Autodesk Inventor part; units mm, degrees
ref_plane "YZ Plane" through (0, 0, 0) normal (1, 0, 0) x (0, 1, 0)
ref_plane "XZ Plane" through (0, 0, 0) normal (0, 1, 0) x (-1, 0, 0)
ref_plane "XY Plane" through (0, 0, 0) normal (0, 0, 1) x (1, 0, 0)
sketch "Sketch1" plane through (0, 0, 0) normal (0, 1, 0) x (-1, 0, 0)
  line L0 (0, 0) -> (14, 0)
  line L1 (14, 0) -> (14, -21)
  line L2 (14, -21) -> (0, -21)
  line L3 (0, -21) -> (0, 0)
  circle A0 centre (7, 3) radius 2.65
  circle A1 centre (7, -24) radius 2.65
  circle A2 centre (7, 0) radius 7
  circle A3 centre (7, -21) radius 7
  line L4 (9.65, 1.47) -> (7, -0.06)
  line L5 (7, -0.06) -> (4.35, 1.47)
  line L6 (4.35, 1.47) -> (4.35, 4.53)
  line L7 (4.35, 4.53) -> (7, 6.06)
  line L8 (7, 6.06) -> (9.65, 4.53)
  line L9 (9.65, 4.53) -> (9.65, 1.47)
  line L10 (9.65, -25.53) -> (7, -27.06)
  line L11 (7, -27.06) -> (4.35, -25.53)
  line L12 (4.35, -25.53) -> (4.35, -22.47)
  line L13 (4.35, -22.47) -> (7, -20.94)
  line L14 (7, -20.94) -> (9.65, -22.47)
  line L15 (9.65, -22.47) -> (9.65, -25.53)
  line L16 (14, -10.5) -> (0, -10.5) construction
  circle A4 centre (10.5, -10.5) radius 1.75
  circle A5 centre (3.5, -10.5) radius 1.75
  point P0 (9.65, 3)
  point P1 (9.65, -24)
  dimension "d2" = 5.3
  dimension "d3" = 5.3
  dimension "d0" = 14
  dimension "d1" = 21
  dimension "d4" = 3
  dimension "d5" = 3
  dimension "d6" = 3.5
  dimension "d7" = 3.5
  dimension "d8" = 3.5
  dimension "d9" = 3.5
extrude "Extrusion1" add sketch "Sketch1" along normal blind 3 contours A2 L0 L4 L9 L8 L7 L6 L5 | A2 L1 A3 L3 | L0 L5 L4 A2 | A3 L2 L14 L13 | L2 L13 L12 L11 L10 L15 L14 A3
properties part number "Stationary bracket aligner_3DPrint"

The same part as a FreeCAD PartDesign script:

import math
import FreeCAD as App
import Part
import Sketcher
Q = App.Units.Quantity


def add_polygon(sketch, points):
    """Adds a closed chain of lines whose ends are joined by coincident constraints."""
    first, n = sketch.GeometryCount, len(points)
    for a, b in zip(points, points[1:] + points[:1]):
        sketch.addGeometry(Part.LineSegment(App.Vector(*a, 0), App.Vector(*b, 0)), False)
    for i in range(n):
        sketch.addConstraint(Sketcher.Constraint("Coincident", first + i, 2, first + (i + 1) % n, 1))

doc = App.newDocument("Part")
body = doc.addObject("PartDesign::Body", "Body")

# Sketch on XZ plane
sketch1 = doc.addObject("Sketcher::SketchObject", "Sketch")
body.addObject(sketch1)
sketch1.AttachmentSupport = (doc.XZ_Plane, [""])
sketch1.MapMode = "FlatFace"
sketch1.addGeometry(Part.ArcOfCircle(Part.Circle(App.Vector(-7, 0, 0), App.Vector(0, 0, 1), 7), math.radians(0), math.radians(180)), False)  # 0
sketch1.addGeometry(Part.LineSegment(App.Vector(0, 0, 0), App.Vector(0, -21, 0)), False)  # 1
sketch1.addGeometry(Part.ArcOfCircle(Part.Circle(App.Vector(-7, -21, 0), App.Vector(0, 0, 1), 7), math.radians(180), math.radians(360)), False)  # 2
sketch1.addGeometry(Part.LineSegment(App.Vector(-14, -21, 0), App.Vector(-14, 0, 0)), False)  # 3
add_polygon(sketch1, [(-7, -0.1), (-4.3, 1.5), (-4.3, 4.5), (-7, 6.1), (-9.7, 4.5), (-9.7, 1.5)])  # lines 4-9
sketch1.addGeometry(Part.Circle(App.Vector(-10.5, -10.5, 0), App.Vector(0, 0, 1), 1.8), False)  # 10
sketch1.addGeometry(Part.Circle(App.Vector(-3.5, -10.5, 0), App.Vector(0, 0, 1), 1.8), False)  # 11
add_polygon(sketch1, [(-7, -20.9), (-9.7, -22.5), (-9.7, -25.5), (-7, -27.1), (-4.3, -25.5), (-4.3, -22.5)])  # lines 12-17
sketch1.addConstraint([
    Sketcher.Constraint("Tangent", 0, 1, 1, 1),
    Sketcher.Constraint("Tangent", 1, 2, 2, 2),
    Sketcher.Constraint("Tangent", 2, 1, 3, 1),
    Sketcher.Constraint("Tangent", 3, 2, 0, 2),
    Sketcher.Constraint("Vertical", 1),
    Sketcher.Constraint("Vertical", 3),
    Sketcher.Constraint("Vertical", 5),
    Sketcher.Constraint("Vertical", 8),
    Sketcher.Constraint("Vertical", 13),
    Sketcher.Constraint("Vertical", 16),
    Sketcher.Constraint("Coincident", 0, 1, -1, 1),
    Sketcher.Constraint("Equal", 10, 11),
    Sketcher.Constraint("Parallel", 4, 7),
    Sketcher.Constraint("Parallel", 6, 9),
    Sketcher.Constraint("Parallel", 7, 12),
    Sketcher.Constraint("Parallel", 9, 14),
    Sketcher.Constraint("Parallel", 12, 15),
    Sketcher.Constraint("Parallel", 14, 17),
    Sketcher.Constraint("Horizontal", 10, 3, 11, 3),
    Sketcher.Constraint("Horizontal", 5, 2, 7, 2),
    Sketcher.Constraint("Horizontal", 4, 2, 8, 2),
    Sketcher.Constraint("Horizontal", 13, 2, 15, 2),
    Sketcher.Constraint("Horizontal", 12, 2, 16, 2),
    Sketcher.Constraint("Vertical", 2, 3, 6, 2),
    Sketcher.Constraint("Vertical", 6, 2, 9, 2),
    Sketcher.Constraint("Vertical", 8, 2, 12, 2),
    Sketcher.Constraint("Vertical", 9, 2, 14, 2),
    Sketcher.Constraint("Equal", 8, 13),
    Sketcher.Constraint("Radius", 0, 7.0),
    Sketcher.Constraint("Diameter", 10, 3.5),
    Sketcher.Constraint("DistanceY", 1, 2, 1, 1, 21.0),
    Sketcher.Constraint("DistanceX", 11, 3, -1, 1, 3.5),
    Sketcher.Constraint("DistanceX", 10, 3, 0, 3, 3.5),
    Sketcher.Constraint("DistanceX", 7, 2, 5, 2, 5.3),
    Sketcher.Constraint("Angle", 4, Q("30.0004 deg")),
    Sketcher.Constraint("DistanceY", 5, 1, 5, 2, 3.06),
    Sketcher.Constraint("DistanceY", 10, 3, -1, 1, 10.5),
    Sketcher.Constraint("DistanceY", -1, 1, 4, 2, 1.47),
    Sketcher.Constraint("DistanceY", 12, 2, -1, 1, 22.47),
])
pad1 = doc.addObject("PartDesign::Pad", "Pad")
body.addObject(pad1)
pad1.Profile = sketch1
pad1.Length = 3
pad1.Reversed = True

doc.recompute()
